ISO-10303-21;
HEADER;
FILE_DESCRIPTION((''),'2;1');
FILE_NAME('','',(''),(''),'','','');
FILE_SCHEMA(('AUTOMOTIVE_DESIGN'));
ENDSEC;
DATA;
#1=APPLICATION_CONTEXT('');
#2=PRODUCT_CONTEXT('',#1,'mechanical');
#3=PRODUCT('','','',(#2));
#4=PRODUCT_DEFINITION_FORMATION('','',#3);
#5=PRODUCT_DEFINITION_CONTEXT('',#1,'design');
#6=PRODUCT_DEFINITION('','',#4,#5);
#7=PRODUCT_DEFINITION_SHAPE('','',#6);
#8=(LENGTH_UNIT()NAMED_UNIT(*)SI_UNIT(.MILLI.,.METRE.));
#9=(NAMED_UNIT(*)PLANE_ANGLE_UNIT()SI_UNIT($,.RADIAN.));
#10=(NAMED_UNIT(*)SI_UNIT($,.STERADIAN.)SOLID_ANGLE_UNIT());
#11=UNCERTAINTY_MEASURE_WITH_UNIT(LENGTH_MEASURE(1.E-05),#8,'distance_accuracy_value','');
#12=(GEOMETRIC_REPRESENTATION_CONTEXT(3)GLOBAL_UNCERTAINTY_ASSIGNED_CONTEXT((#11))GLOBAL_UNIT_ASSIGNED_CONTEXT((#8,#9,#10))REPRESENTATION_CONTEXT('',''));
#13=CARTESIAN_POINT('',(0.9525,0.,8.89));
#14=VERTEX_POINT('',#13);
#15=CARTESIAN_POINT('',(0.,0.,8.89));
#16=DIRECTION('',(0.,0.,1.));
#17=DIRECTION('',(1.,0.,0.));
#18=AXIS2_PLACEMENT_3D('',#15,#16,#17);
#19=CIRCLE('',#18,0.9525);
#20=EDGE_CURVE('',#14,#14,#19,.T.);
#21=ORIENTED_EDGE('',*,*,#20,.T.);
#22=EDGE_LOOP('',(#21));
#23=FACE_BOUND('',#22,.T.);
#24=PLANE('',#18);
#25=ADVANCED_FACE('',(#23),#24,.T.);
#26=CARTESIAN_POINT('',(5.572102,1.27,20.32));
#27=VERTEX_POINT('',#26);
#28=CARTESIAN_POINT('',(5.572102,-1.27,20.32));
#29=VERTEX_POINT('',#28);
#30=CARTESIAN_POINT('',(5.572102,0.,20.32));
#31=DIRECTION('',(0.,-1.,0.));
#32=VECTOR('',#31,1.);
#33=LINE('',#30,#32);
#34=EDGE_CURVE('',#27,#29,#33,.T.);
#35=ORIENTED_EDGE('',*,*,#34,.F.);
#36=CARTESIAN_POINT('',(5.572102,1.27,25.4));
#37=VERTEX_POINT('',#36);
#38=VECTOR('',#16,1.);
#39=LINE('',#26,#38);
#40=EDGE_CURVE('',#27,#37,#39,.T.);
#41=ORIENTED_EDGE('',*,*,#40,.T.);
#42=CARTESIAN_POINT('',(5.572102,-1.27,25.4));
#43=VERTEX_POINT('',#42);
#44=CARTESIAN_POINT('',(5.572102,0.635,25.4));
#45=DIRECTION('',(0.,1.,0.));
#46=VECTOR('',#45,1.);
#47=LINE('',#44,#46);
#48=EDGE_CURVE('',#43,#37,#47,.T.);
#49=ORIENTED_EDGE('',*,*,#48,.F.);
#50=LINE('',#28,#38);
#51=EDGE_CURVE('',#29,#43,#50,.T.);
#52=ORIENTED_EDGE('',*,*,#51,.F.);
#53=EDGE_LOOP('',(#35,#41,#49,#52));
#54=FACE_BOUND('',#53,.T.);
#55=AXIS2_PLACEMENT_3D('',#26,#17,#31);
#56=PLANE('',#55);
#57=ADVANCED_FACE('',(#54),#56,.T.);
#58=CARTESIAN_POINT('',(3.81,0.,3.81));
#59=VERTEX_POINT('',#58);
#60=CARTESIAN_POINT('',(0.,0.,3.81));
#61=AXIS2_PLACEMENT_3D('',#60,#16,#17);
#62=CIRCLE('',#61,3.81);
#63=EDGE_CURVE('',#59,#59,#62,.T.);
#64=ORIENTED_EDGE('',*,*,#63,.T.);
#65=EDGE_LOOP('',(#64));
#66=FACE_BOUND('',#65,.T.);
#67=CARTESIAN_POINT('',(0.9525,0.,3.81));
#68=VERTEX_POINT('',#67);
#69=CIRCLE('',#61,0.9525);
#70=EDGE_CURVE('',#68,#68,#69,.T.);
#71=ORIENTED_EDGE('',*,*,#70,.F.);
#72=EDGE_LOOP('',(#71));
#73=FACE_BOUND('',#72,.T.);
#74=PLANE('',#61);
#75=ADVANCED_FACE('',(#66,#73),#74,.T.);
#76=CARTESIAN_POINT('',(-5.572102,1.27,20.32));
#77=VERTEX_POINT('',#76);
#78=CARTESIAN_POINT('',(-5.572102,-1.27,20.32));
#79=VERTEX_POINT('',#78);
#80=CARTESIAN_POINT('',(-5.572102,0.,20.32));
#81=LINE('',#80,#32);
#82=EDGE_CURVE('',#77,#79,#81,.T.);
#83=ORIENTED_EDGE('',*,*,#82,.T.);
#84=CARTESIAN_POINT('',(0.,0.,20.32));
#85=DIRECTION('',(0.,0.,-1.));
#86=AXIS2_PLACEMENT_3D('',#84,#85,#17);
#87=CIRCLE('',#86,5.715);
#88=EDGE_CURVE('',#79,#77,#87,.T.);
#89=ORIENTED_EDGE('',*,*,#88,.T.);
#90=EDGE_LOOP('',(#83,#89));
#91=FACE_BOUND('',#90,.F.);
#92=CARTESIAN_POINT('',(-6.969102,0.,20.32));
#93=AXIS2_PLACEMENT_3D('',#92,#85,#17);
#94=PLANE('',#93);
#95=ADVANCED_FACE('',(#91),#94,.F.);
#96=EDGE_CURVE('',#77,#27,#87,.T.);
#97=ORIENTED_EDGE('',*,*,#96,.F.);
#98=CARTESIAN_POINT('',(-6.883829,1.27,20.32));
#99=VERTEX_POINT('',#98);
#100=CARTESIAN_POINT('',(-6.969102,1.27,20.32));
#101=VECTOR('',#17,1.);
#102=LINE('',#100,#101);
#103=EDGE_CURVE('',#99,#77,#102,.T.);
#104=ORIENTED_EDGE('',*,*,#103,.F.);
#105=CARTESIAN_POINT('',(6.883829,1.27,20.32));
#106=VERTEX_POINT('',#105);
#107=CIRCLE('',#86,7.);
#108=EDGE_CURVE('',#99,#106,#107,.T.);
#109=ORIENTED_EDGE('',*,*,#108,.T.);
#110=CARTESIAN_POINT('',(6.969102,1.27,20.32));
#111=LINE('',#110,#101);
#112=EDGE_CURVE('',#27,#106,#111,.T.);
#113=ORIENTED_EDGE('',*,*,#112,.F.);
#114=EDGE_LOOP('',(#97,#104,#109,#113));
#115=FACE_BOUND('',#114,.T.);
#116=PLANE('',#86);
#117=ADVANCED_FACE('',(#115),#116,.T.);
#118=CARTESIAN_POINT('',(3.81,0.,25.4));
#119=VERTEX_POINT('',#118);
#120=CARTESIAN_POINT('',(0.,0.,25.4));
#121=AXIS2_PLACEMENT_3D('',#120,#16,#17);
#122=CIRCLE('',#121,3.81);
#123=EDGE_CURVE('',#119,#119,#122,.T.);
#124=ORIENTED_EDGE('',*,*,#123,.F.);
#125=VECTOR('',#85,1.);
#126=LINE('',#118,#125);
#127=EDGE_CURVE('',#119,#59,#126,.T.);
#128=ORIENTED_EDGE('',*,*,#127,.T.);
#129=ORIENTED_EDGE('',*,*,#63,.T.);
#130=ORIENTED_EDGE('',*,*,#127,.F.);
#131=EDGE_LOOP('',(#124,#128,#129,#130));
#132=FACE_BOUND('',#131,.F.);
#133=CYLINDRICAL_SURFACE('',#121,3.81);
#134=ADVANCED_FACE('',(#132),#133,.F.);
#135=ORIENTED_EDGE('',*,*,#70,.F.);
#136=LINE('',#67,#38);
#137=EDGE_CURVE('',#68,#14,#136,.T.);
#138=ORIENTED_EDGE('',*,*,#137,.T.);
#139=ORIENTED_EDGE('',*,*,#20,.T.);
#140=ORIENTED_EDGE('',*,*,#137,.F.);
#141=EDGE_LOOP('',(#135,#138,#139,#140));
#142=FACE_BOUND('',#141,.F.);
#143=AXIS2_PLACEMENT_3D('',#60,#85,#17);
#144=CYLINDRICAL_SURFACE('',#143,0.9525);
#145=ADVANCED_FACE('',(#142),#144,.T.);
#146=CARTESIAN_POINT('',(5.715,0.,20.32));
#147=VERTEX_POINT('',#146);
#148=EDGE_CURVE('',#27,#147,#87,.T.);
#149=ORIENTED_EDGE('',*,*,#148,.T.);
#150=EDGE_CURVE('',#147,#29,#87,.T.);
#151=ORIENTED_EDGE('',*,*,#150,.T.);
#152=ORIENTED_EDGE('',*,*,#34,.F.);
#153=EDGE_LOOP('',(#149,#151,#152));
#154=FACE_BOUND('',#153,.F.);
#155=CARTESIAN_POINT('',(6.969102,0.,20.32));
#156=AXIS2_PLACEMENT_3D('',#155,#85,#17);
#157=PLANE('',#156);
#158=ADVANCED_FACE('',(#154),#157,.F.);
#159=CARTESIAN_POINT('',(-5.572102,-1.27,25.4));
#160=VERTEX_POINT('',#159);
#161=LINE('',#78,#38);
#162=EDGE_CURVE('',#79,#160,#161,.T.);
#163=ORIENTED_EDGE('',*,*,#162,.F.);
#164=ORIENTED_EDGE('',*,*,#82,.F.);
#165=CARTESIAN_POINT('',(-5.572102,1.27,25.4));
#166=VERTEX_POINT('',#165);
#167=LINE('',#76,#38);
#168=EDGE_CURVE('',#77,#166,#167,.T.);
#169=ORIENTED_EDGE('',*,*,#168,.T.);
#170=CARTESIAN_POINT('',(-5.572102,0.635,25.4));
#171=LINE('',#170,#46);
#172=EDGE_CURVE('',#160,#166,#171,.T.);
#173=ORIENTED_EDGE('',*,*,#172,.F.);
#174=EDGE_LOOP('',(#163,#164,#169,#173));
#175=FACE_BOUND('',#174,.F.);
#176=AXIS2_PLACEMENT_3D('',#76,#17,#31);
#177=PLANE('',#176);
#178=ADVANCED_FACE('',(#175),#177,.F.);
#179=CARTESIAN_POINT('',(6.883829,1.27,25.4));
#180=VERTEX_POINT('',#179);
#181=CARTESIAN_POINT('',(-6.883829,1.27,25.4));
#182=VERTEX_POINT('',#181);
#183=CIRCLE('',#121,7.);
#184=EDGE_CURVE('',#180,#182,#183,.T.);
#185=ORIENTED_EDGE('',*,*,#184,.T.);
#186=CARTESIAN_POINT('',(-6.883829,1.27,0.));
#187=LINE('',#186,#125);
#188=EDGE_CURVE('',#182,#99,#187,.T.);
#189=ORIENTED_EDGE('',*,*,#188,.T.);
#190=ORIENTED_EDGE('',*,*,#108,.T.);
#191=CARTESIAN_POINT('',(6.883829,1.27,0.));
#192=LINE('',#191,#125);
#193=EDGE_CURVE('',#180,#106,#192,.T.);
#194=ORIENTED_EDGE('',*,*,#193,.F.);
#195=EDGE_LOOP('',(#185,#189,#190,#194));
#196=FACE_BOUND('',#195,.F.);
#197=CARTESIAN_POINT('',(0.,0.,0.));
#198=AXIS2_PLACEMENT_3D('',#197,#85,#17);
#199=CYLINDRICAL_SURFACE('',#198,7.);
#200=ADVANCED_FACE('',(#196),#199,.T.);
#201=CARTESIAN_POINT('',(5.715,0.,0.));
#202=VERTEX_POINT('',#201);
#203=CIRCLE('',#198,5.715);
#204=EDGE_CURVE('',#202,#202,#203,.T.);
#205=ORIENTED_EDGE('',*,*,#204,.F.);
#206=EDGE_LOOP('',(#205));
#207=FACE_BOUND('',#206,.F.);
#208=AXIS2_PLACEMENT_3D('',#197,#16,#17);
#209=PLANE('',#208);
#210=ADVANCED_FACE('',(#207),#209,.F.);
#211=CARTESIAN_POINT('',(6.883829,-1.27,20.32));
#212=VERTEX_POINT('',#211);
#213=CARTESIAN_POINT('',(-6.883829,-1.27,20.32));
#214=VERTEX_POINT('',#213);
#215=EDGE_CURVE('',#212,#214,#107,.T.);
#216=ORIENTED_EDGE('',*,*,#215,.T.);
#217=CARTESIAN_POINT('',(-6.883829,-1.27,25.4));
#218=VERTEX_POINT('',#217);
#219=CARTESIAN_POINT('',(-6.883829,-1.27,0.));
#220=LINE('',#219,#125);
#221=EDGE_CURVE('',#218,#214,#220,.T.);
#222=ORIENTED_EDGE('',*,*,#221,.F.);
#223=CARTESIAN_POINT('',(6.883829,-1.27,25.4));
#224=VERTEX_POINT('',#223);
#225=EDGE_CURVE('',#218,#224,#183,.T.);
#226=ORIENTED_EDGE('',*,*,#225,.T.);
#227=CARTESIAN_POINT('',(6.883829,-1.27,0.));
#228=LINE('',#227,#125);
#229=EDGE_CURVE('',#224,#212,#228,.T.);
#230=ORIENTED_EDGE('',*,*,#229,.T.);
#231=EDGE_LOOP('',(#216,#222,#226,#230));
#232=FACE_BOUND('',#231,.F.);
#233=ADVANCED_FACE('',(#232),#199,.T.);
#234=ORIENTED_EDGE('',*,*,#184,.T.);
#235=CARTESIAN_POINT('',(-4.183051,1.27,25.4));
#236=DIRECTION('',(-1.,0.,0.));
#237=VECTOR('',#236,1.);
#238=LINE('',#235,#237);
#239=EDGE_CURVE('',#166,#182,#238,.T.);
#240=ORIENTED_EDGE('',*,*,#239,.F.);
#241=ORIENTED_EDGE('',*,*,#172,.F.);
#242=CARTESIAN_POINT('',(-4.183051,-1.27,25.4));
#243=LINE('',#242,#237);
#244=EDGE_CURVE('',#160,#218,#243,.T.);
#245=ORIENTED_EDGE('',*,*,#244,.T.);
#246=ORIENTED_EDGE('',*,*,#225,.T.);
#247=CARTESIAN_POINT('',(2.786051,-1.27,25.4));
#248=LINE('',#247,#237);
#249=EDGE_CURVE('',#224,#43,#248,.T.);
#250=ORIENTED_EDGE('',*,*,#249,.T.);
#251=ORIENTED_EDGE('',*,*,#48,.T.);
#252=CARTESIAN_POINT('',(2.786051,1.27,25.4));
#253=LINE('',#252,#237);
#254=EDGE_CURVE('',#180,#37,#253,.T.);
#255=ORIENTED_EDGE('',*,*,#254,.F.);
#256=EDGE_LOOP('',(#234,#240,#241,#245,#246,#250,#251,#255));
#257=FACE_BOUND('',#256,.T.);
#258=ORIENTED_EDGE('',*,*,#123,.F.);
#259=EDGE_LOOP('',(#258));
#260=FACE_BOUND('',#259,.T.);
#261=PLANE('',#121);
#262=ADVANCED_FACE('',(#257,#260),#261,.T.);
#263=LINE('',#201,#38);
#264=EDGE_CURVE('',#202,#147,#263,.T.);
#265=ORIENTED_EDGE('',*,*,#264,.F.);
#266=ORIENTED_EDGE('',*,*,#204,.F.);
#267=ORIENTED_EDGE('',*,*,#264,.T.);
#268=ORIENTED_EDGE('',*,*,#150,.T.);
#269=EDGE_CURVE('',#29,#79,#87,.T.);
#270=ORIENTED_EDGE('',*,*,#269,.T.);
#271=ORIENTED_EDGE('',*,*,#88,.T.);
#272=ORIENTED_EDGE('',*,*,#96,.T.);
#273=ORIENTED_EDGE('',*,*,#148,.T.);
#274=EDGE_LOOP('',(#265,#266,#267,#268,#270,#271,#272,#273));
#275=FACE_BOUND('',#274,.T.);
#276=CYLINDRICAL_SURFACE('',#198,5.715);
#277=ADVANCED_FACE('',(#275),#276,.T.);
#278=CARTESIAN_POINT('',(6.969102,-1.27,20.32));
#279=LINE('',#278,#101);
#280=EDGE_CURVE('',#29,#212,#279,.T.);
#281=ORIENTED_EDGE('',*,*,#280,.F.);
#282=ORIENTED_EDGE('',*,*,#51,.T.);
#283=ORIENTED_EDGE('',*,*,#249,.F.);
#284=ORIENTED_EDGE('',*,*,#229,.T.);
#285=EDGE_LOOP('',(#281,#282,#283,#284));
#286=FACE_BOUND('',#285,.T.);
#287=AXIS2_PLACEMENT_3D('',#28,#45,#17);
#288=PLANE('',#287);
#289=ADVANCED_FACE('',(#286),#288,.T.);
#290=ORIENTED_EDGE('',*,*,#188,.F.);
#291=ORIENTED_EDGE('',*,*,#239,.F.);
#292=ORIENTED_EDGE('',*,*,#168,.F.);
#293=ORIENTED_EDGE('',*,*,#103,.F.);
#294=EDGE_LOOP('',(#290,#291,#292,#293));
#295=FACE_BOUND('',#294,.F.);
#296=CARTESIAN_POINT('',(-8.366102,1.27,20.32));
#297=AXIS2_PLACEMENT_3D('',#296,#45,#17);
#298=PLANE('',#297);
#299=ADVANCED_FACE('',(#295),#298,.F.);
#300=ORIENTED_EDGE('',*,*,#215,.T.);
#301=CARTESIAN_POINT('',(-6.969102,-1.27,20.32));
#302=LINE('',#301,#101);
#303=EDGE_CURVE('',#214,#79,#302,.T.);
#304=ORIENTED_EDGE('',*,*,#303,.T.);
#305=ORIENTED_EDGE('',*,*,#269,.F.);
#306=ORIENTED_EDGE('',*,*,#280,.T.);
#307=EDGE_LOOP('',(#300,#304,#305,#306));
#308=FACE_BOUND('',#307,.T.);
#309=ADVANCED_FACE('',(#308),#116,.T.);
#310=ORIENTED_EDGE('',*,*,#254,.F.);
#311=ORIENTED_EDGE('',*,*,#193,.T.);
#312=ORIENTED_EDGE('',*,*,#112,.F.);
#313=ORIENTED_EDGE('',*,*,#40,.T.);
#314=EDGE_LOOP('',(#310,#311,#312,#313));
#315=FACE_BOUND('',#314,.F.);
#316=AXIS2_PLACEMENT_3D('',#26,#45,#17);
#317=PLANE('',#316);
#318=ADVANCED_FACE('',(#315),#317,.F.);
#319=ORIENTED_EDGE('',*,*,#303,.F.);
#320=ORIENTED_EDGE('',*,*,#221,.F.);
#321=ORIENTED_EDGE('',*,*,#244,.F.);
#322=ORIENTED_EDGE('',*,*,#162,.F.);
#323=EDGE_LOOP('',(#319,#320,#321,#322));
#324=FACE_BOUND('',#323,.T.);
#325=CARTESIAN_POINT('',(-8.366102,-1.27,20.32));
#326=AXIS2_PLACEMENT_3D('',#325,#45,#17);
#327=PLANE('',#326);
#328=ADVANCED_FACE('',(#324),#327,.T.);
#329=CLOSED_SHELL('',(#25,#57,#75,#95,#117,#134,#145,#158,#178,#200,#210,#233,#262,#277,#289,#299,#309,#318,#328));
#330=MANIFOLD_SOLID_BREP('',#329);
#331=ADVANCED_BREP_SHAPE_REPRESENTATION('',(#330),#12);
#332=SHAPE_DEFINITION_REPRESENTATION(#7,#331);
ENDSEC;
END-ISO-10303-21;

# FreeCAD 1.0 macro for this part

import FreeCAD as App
import Part
import Sketcher

V = App.Vector
Q = App.Units.Quantity


def add_polygon(sketch, points):
    """Adds a closed chain of lines whose ends are joined by coincident constraints."""
    first, n = sketch.GeometryCount, len(points)
    for a, b in zip(points, points[1:] + points[:1]):
        sketch.addGeometry(Part.LineSegment(App.Vector(*a, 0), App.Vector(*b, 0)), False)
    for i in range(n):
        sketch.addConstraint(Sketcher.Constraint("Coincident", first + i, 2, first + (i + 1) % n, 1))

doc = App.newDocument("Part")
body = doc.addObject("PartDesign::Body", "Body")

sketch1 = body.newObject("Sketcher::SketchObject", "Sketch")
sketch1.AttachmentSupport = (doc.getObject("XY_Plane"), [""])
sketch1.MapMode = "FlatFace"
sketch1.addGeometry(Part.Circle(V(0, 0, 0), V(0, 0, 1), 7), False)
sketch1.addConstraint(Sketcher.Constraint("Coincident", 0, 3, -1, 1))
sketch1.addConstraint(Sketcher.Constraint("Diameter", 0, Q("14 mm")))
pad1 = body.newObject("PartDesign::Pad", "Pad")
pad1.Profile = sketch1
pad1.Length = Q("1 in")

sketch2 = body.newObject("Sketcher::SketchObject", "Sketch001")
sketch2.AttachmentSupport = (doc.getObject("XY_Plane"), [""])
sketch2.MapMode = "FlatFace"
sketch2.AttachmentOffset = App.Placement(V(0, 0, 1 * 25.4), App.Rotation())
sketch2.addGeometry(Part.Circle(V(0, 0, 0), V(0, 0, 1), 3.8), False)
sketch2.addConstraint(Sketcher.Constraint("Coincident", 0, 3, -1, 1))
sketch2.addConstraint(Sketcher.Constraint("Diameter", 0, Q("0.3 in")))
pocket1 = body.newObject("PartDesign::Pocket", "Pocket")
pocket1.Profile = sketch2
pocket1.Length = Q("0.85 in")

sketch3 = body.newObject("Sketcher::SketchObject", "Sketch002")
sketch3.AttachmentSupport = (doc.getObject("XY_Plane"), [""])
sketch3.MapMode = "FlatFace"
sketch3.addGeometry(Part.Circle(V(0, 0, 0), V(0, 0, 1), 7), False)
sketch3.addGeometry(Part.Circle(V(0, 0, 0), V(0, 0, 1), 6), False)
sketch3.addConstraint(Sketcher.Constraint("Coincident", 0, 3, -1, 1))
sketch3.addConstraint(Sketcher.Constraint("Coincident", 1, 3, -1, 1))
sketch3.addConstraint(Sketcher.Constraint("Diameter", 1, Q("0.45 in")))
sketch3.addConstraint(Sketcher.Constraint("Diameter", 0, Q("14 mm")))
pocket2 = body.newObject("PartDesign::Pocket", "Pocket001")
pocket2.Profile = sketch3
pocket2.Length = Q("0.8 in")
pocket2.Reversed = True

sketch4 = body.newObject("Sketcher::SketchObject", "Sketch003")
sketch4.AttachmentSupport = (doc.getObject("XY_Plane"), [""])
sketch4.MapMode = "FlatFace"
sketch4.AttachmentOffset = App.Placement(V(0, 0, 0.8 * 25.4), App.Rotation())
add_polygon(sketch4, [(5.6, -1.3), (5.6, 1.3), (8.4, 1.3), (8.4, -1.3)])
add_polygon(sketch4, [(-8.4, -1.3), (-8.4, 1.3), (-5.6, 1.3), (-5.6, -1.3)])
sketch4.addConstraint(Sketcher.Constraint("Vertical", 0))
sketch4.addConstraint(Sketcher.Constraint("Horizontal", 1))
sketch4.addConstraint(Sketcher.Constraint("Vertical", 2))
sketch4.addConstraint(Sketcher.Constraint("Horizontal", 3))
sketch4.addConstraint(Sketcher.Constraint("Vertical", 4))
sketch4.addConstraint(Sketcher.Constraint("Horizontal", 5))
sketch4.addConstraint(Sketcher.Constraint("Vertical", 6))
sketch4.addConstraint(Sketcher.Constraint("Horizontal", 7))
sketch4.addConstraint(Sketcher.Constraint("Symmetric", 2, 2, 4, 2, -1, 1))
sketch4.addConstraint(Sketcher.Constraint("Symmetric", 0, 2, 6, 2, -1, 1))
sketch4.addConstraint(Sketcher.Constraint("Horizontal", 1, 2, 4, 2))
sketch4.addConstraint(Sketcher.Constraint("DistanceY", 0, 1, 0, 2, Q("0.1 in")))
sketch4.addConstraint(Sketcher.Constraint("DistanceX", 1, 1, 1, 2, Q("0.11 in")))
sketch4.addConstraint(Sketcher.Constraint("DistanceX", -1, 1, 0, 2, Q("5.572102 mm")))
pocket3 = body.newObject("PartDesign::Pocket", "Pocket002")
pocket3.Profile = sketch4
pocket3.Length = Q("1 in")
pocket3.Reversed = True

sketch5 = body.newObject("Sketcher::SketchObject", "Sketch004")
sketch5.AttachmentSupport = (doc.getObject("XY_Plane"), [""])
sketch5.MapMode = "FlatFace"
sketch5.AttachmentOffset = App.Placement(V(0, 0, 0.15 * 25.4), App.Rotation())
sketch5.addGeometry(Part.Circle(V(0, 0, 0), V(0, 0, 1), 1), False)
sketch5.addConstraint(Sketcher.Constraint("Coincident", 0, 3, -1, 1))
sketch5.addConstraint(Sketcher.Constraint("Diameter", 0, Q("0.075 in")))
pad2 = body.newObject("PartDesign::Pad", "Pad001")
pad2.Profile = sketch5
pad2.Length = Q("0.2 in")

doc.recompute()
